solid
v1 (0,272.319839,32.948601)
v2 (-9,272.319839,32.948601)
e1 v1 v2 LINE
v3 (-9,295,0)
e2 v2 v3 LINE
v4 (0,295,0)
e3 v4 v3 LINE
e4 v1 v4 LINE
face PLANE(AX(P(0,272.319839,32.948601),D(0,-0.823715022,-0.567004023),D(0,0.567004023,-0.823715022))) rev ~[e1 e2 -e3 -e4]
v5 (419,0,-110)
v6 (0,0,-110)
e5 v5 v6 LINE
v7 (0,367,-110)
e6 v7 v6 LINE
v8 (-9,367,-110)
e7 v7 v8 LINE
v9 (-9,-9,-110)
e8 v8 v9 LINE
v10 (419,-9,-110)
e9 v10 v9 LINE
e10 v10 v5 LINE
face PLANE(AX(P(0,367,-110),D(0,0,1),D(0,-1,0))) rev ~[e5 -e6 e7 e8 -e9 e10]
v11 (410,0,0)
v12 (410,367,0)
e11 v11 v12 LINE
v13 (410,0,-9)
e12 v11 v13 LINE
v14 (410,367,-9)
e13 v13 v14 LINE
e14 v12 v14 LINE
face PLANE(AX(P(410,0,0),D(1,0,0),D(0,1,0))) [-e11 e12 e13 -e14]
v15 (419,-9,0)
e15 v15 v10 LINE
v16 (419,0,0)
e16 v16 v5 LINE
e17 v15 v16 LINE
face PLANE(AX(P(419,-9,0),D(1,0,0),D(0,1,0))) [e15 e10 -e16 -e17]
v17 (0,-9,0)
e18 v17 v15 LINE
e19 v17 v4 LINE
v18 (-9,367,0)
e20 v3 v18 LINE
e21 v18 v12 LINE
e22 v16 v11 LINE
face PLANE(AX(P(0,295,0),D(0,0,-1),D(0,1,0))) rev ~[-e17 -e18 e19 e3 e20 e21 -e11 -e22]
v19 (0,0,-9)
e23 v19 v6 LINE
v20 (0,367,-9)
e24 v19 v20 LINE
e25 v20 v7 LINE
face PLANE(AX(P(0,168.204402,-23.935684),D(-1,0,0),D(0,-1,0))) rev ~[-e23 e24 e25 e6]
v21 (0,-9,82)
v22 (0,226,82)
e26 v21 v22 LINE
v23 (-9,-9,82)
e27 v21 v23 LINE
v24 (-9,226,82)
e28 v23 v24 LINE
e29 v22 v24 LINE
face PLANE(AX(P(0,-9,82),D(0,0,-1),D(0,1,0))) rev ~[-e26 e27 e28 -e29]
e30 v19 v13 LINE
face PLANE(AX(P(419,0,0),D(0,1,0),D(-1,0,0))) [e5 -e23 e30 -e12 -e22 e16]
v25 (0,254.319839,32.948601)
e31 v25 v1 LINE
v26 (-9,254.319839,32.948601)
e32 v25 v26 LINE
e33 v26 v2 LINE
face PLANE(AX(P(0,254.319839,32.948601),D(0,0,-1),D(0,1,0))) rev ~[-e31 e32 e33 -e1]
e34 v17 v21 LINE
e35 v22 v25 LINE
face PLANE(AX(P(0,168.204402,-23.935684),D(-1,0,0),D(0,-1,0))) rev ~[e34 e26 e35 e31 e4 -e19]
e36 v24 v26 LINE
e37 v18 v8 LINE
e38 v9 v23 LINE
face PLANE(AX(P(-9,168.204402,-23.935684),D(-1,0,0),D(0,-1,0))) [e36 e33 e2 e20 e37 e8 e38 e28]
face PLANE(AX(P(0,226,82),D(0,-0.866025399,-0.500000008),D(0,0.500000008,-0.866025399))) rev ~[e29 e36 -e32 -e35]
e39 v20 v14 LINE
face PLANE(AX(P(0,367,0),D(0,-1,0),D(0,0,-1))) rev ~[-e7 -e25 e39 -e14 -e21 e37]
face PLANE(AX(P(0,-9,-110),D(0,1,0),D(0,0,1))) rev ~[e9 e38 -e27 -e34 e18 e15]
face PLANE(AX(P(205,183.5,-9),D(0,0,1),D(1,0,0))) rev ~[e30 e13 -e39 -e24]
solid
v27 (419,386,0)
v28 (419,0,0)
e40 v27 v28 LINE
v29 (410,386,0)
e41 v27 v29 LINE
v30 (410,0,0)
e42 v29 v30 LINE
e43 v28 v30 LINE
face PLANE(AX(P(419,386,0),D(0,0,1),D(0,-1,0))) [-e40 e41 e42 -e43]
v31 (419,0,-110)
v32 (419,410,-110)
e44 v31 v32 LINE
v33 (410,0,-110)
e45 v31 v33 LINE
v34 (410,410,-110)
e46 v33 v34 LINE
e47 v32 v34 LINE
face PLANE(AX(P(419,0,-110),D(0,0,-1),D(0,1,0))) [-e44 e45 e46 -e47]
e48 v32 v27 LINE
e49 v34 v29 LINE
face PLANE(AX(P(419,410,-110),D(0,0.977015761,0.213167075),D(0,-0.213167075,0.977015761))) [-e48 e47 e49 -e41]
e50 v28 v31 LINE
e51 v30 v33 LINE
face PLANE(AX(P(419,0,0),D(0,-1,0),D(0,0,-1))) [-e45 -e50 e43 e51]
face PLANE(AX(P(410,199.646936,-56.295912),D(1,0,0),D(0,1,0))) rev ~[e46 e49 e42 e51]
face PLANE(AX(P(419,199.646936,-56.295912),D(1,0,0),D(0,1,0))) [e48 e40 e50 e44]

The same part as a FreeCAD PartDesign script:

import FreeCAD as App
import Part
import Sketcher

V = App.Vector
Q = App.Units.Quantity


def add_polygon(sketch, points):
    """Adds a closed chain of lines whose ends are joined by coincident constraints."""
    first, n = sketch.GeometryCount, len(points)
    for a, b in zip(points, points[1:] + points[:1]):
        sketch.addGeometry(Part.LineSegment(App.Vector(*a, 0), App.Vector(*b, 0)), False)
    for i in range(n):
        sketch.addConstraint(Sketcher.Constraint("Coincident", first + i, 2, first + (i + 1) % n, 1))

doc = App.newDocument("Part")
body = doc.addObject("PartDesign::Body", "Body")

sketch1 = body.newObject("Sketcher::SketchObject", "Sketch")
sketch1.AttachmentSupport = (doc.getObject("XY_Plane"), [""])
sketch1.MapMode = "FlatFace"
add_polygon(sketch1, [(0, 367), (0, 0), (410, 0), (410, 367)])
sketch1.addConstraint(Sketcher.Constraint("Vertical", 0))
sketch1.addConstraint(Sketcher.Constraint("Horizontal", 1))
sketch1.addConstraint(Sketcher.Constraint("Vertical", 2))
sketch1.addConstraint(Sketcher.Constraint("Horizontal", 3))
sketch1.addConstraint(Sketcher.Constraint("Coincident", 0, 2, -1, 1))
sketch1.addConstraint(Sketcher.Constraint("DistanceX", 1, 1, 1, 2, Q("410 mm")))
sketch1.addConstraint(Sketcher.Constraint("DistanceY", 0, 2, 0, 1, Q("367 mm")))
pad1 = body.newObject("PartDesign::Pad", "Pad")
pad1.Profile = sketch1
pad1.Length = 9
pad1.Reversed = True

sketch2 = body.newObject("Sketcher::SketchObject", "Sketch001")
sketch2.AttachmentSupport = (doc.getObject("XY_Plane"), [""])
sketch2.MapMode = "FlatFace"
add_polygon(sketch2, [(0, 0), (0, -9), (419, -9), (419, 0)])
sketch2.addConstraint(Sketcher.Constraint("Vertical", 0))
sketch2.addConstraint(Sketcher.Constraint("Horizontal", 1))
sketch2.addConstraint(Sketcher.Constraint("Vertical", 2))
sketch2.addConstraint(Sketcher.Constraint("Horizontal", 3))
sketch2.addConstraint(Sketcher.Constraint("Coincident", 3, 2, -1, 1))
sketch2.addConstraint(Sketcher.Constraint("DistanceX", 1, 1, 1, 2, Q("419 mm")))
sketch2.addConstraint(Sketcher.Constraint("DistanceY", 0, 2, 0, 1, Q("9 mm")))
pad2 = body.newObject("PartDesign::Pad", "Pad001")
pad2.Profile = sketch2
pad2.Length = 110
pad2.Reversed = True

sketch3 = body.newObject("Sketcher::SketchObject", "Sketch002")
sketch3.AttachmentSupport = (doc.getObject("YZ_Plane"), [""])
sketch3.MapMode = "FlatFace"
add_polygon(sketch3, [(367, -110), (-9, -110), (-9, 82), (226, 82), (254, 33), (272, 33), (295, 0), (367, 0)])
sketch3.addConstraint(Sketcher.Constraint("Horizontal", 0))
sketch3.addConstraint(Sketcher.Constraint("Vertical", 1))
sketch3.addConstraint(Sketcher.Constraint("Horizontal", 2))
sketch3.addConstraint(Sketcher.Constraint("Horizontal", 4))
sketch3.addConstraint(Sketcher.Constraint("Horizontal", 6))
sketch3.addConstraint(Sketcher.Constraint("Vertical", 7))
sketch3.addConstraint(Sketcher.Constraint("PointOnObject", 5, 2, -1))
sketch3.addConstraint(Sketcher.Constraint("DistanceX", 0, 2, 0, 1, Q("376 mm")))
sketch3.addConstraint(Sketcher.Constraint("DistanceX", 2, 1, 2, 2, Q("235 mm")))
sketch3.addConstraint(Sketcher.Constraint("DistanceX", 4, 1, 4, 2, Q("18 mm")))
sketch3.addConstraint(Sketcher.Constraint("DistanceX", 6, 1, 6, 2, Q("72 mm")))
sketch3.addConstraint(Sketcher.Constraint("DistanceY", 1, 1, 1, 2, Q("192 mm")))
sketch3.addConstraint(Sketcher.Constraint("DistanceY", 7, 2, 7, 1, Q("110 mm")))
sketch3.addConstraint(Sketcher.Constraint("Angle", 3, Q("-59.999999 deg")))
sketch3.addConstraint(Sketcher.Constraint("Distance", 5, Q("40 mm")))
sketch3.addConstraint(Sketcher.Constraint("DistanceX", 0, 2, -1, 1, Q("9 mm")))
pad3 = body.newObject("PartDesign::Pad", "Pad002")
pad3.Profile = sketch3
pad3.Length = 9
pad3.Reversed = True
body2 = doc.addObject("PartDesign::Body", "Body001")

sketch4 = body2.newObject("Sketcher::SketchObject", "Sketch003")
sketch4.AttachmentSupport = (doc.getObject("YZ_Plane001"), [""])
sketch4.MapMode = "FlatFace"
sketch4.AttachmentOffset = App.Placement(V(0, 0, 419), App.Rotation())
add_polygon(sketch4, [(386, 0), (0, 0), (0, -110), (410, -110)])
sketch4.addConstraint(Sketcher.Constraint("Horizontal", 0))
sketch4.addConstraint(Sketcher.Constraint("Vertical", 1))
sketch4.addConstraint(Sketcher.Constraint("Horizontal", 2))
sketch4.addConstraint(Sketcher.Constraint("Coincident", 0, 2, -1, 1))
sketch4.addConstraint(Sketcher.Constraint("DistanceX", 0, 2, 0, 1, Q("386 mm")))
sketch4.addConstraint(Sketcher.Constraint("DistanceX", 2, 1, 2, 2, Q("410 mm")))
sketch4.addConstraint(Sketcher.Constraint("DistanceY", 1, 2, 1, 1, Q("110 mm")))
pad4 = body2.newObject("PartDesign::Pad", "Pad003")
pad4.Profile = sketch4
pad4.Length = 9
pad4.Reversed = True

doc.recompute()
